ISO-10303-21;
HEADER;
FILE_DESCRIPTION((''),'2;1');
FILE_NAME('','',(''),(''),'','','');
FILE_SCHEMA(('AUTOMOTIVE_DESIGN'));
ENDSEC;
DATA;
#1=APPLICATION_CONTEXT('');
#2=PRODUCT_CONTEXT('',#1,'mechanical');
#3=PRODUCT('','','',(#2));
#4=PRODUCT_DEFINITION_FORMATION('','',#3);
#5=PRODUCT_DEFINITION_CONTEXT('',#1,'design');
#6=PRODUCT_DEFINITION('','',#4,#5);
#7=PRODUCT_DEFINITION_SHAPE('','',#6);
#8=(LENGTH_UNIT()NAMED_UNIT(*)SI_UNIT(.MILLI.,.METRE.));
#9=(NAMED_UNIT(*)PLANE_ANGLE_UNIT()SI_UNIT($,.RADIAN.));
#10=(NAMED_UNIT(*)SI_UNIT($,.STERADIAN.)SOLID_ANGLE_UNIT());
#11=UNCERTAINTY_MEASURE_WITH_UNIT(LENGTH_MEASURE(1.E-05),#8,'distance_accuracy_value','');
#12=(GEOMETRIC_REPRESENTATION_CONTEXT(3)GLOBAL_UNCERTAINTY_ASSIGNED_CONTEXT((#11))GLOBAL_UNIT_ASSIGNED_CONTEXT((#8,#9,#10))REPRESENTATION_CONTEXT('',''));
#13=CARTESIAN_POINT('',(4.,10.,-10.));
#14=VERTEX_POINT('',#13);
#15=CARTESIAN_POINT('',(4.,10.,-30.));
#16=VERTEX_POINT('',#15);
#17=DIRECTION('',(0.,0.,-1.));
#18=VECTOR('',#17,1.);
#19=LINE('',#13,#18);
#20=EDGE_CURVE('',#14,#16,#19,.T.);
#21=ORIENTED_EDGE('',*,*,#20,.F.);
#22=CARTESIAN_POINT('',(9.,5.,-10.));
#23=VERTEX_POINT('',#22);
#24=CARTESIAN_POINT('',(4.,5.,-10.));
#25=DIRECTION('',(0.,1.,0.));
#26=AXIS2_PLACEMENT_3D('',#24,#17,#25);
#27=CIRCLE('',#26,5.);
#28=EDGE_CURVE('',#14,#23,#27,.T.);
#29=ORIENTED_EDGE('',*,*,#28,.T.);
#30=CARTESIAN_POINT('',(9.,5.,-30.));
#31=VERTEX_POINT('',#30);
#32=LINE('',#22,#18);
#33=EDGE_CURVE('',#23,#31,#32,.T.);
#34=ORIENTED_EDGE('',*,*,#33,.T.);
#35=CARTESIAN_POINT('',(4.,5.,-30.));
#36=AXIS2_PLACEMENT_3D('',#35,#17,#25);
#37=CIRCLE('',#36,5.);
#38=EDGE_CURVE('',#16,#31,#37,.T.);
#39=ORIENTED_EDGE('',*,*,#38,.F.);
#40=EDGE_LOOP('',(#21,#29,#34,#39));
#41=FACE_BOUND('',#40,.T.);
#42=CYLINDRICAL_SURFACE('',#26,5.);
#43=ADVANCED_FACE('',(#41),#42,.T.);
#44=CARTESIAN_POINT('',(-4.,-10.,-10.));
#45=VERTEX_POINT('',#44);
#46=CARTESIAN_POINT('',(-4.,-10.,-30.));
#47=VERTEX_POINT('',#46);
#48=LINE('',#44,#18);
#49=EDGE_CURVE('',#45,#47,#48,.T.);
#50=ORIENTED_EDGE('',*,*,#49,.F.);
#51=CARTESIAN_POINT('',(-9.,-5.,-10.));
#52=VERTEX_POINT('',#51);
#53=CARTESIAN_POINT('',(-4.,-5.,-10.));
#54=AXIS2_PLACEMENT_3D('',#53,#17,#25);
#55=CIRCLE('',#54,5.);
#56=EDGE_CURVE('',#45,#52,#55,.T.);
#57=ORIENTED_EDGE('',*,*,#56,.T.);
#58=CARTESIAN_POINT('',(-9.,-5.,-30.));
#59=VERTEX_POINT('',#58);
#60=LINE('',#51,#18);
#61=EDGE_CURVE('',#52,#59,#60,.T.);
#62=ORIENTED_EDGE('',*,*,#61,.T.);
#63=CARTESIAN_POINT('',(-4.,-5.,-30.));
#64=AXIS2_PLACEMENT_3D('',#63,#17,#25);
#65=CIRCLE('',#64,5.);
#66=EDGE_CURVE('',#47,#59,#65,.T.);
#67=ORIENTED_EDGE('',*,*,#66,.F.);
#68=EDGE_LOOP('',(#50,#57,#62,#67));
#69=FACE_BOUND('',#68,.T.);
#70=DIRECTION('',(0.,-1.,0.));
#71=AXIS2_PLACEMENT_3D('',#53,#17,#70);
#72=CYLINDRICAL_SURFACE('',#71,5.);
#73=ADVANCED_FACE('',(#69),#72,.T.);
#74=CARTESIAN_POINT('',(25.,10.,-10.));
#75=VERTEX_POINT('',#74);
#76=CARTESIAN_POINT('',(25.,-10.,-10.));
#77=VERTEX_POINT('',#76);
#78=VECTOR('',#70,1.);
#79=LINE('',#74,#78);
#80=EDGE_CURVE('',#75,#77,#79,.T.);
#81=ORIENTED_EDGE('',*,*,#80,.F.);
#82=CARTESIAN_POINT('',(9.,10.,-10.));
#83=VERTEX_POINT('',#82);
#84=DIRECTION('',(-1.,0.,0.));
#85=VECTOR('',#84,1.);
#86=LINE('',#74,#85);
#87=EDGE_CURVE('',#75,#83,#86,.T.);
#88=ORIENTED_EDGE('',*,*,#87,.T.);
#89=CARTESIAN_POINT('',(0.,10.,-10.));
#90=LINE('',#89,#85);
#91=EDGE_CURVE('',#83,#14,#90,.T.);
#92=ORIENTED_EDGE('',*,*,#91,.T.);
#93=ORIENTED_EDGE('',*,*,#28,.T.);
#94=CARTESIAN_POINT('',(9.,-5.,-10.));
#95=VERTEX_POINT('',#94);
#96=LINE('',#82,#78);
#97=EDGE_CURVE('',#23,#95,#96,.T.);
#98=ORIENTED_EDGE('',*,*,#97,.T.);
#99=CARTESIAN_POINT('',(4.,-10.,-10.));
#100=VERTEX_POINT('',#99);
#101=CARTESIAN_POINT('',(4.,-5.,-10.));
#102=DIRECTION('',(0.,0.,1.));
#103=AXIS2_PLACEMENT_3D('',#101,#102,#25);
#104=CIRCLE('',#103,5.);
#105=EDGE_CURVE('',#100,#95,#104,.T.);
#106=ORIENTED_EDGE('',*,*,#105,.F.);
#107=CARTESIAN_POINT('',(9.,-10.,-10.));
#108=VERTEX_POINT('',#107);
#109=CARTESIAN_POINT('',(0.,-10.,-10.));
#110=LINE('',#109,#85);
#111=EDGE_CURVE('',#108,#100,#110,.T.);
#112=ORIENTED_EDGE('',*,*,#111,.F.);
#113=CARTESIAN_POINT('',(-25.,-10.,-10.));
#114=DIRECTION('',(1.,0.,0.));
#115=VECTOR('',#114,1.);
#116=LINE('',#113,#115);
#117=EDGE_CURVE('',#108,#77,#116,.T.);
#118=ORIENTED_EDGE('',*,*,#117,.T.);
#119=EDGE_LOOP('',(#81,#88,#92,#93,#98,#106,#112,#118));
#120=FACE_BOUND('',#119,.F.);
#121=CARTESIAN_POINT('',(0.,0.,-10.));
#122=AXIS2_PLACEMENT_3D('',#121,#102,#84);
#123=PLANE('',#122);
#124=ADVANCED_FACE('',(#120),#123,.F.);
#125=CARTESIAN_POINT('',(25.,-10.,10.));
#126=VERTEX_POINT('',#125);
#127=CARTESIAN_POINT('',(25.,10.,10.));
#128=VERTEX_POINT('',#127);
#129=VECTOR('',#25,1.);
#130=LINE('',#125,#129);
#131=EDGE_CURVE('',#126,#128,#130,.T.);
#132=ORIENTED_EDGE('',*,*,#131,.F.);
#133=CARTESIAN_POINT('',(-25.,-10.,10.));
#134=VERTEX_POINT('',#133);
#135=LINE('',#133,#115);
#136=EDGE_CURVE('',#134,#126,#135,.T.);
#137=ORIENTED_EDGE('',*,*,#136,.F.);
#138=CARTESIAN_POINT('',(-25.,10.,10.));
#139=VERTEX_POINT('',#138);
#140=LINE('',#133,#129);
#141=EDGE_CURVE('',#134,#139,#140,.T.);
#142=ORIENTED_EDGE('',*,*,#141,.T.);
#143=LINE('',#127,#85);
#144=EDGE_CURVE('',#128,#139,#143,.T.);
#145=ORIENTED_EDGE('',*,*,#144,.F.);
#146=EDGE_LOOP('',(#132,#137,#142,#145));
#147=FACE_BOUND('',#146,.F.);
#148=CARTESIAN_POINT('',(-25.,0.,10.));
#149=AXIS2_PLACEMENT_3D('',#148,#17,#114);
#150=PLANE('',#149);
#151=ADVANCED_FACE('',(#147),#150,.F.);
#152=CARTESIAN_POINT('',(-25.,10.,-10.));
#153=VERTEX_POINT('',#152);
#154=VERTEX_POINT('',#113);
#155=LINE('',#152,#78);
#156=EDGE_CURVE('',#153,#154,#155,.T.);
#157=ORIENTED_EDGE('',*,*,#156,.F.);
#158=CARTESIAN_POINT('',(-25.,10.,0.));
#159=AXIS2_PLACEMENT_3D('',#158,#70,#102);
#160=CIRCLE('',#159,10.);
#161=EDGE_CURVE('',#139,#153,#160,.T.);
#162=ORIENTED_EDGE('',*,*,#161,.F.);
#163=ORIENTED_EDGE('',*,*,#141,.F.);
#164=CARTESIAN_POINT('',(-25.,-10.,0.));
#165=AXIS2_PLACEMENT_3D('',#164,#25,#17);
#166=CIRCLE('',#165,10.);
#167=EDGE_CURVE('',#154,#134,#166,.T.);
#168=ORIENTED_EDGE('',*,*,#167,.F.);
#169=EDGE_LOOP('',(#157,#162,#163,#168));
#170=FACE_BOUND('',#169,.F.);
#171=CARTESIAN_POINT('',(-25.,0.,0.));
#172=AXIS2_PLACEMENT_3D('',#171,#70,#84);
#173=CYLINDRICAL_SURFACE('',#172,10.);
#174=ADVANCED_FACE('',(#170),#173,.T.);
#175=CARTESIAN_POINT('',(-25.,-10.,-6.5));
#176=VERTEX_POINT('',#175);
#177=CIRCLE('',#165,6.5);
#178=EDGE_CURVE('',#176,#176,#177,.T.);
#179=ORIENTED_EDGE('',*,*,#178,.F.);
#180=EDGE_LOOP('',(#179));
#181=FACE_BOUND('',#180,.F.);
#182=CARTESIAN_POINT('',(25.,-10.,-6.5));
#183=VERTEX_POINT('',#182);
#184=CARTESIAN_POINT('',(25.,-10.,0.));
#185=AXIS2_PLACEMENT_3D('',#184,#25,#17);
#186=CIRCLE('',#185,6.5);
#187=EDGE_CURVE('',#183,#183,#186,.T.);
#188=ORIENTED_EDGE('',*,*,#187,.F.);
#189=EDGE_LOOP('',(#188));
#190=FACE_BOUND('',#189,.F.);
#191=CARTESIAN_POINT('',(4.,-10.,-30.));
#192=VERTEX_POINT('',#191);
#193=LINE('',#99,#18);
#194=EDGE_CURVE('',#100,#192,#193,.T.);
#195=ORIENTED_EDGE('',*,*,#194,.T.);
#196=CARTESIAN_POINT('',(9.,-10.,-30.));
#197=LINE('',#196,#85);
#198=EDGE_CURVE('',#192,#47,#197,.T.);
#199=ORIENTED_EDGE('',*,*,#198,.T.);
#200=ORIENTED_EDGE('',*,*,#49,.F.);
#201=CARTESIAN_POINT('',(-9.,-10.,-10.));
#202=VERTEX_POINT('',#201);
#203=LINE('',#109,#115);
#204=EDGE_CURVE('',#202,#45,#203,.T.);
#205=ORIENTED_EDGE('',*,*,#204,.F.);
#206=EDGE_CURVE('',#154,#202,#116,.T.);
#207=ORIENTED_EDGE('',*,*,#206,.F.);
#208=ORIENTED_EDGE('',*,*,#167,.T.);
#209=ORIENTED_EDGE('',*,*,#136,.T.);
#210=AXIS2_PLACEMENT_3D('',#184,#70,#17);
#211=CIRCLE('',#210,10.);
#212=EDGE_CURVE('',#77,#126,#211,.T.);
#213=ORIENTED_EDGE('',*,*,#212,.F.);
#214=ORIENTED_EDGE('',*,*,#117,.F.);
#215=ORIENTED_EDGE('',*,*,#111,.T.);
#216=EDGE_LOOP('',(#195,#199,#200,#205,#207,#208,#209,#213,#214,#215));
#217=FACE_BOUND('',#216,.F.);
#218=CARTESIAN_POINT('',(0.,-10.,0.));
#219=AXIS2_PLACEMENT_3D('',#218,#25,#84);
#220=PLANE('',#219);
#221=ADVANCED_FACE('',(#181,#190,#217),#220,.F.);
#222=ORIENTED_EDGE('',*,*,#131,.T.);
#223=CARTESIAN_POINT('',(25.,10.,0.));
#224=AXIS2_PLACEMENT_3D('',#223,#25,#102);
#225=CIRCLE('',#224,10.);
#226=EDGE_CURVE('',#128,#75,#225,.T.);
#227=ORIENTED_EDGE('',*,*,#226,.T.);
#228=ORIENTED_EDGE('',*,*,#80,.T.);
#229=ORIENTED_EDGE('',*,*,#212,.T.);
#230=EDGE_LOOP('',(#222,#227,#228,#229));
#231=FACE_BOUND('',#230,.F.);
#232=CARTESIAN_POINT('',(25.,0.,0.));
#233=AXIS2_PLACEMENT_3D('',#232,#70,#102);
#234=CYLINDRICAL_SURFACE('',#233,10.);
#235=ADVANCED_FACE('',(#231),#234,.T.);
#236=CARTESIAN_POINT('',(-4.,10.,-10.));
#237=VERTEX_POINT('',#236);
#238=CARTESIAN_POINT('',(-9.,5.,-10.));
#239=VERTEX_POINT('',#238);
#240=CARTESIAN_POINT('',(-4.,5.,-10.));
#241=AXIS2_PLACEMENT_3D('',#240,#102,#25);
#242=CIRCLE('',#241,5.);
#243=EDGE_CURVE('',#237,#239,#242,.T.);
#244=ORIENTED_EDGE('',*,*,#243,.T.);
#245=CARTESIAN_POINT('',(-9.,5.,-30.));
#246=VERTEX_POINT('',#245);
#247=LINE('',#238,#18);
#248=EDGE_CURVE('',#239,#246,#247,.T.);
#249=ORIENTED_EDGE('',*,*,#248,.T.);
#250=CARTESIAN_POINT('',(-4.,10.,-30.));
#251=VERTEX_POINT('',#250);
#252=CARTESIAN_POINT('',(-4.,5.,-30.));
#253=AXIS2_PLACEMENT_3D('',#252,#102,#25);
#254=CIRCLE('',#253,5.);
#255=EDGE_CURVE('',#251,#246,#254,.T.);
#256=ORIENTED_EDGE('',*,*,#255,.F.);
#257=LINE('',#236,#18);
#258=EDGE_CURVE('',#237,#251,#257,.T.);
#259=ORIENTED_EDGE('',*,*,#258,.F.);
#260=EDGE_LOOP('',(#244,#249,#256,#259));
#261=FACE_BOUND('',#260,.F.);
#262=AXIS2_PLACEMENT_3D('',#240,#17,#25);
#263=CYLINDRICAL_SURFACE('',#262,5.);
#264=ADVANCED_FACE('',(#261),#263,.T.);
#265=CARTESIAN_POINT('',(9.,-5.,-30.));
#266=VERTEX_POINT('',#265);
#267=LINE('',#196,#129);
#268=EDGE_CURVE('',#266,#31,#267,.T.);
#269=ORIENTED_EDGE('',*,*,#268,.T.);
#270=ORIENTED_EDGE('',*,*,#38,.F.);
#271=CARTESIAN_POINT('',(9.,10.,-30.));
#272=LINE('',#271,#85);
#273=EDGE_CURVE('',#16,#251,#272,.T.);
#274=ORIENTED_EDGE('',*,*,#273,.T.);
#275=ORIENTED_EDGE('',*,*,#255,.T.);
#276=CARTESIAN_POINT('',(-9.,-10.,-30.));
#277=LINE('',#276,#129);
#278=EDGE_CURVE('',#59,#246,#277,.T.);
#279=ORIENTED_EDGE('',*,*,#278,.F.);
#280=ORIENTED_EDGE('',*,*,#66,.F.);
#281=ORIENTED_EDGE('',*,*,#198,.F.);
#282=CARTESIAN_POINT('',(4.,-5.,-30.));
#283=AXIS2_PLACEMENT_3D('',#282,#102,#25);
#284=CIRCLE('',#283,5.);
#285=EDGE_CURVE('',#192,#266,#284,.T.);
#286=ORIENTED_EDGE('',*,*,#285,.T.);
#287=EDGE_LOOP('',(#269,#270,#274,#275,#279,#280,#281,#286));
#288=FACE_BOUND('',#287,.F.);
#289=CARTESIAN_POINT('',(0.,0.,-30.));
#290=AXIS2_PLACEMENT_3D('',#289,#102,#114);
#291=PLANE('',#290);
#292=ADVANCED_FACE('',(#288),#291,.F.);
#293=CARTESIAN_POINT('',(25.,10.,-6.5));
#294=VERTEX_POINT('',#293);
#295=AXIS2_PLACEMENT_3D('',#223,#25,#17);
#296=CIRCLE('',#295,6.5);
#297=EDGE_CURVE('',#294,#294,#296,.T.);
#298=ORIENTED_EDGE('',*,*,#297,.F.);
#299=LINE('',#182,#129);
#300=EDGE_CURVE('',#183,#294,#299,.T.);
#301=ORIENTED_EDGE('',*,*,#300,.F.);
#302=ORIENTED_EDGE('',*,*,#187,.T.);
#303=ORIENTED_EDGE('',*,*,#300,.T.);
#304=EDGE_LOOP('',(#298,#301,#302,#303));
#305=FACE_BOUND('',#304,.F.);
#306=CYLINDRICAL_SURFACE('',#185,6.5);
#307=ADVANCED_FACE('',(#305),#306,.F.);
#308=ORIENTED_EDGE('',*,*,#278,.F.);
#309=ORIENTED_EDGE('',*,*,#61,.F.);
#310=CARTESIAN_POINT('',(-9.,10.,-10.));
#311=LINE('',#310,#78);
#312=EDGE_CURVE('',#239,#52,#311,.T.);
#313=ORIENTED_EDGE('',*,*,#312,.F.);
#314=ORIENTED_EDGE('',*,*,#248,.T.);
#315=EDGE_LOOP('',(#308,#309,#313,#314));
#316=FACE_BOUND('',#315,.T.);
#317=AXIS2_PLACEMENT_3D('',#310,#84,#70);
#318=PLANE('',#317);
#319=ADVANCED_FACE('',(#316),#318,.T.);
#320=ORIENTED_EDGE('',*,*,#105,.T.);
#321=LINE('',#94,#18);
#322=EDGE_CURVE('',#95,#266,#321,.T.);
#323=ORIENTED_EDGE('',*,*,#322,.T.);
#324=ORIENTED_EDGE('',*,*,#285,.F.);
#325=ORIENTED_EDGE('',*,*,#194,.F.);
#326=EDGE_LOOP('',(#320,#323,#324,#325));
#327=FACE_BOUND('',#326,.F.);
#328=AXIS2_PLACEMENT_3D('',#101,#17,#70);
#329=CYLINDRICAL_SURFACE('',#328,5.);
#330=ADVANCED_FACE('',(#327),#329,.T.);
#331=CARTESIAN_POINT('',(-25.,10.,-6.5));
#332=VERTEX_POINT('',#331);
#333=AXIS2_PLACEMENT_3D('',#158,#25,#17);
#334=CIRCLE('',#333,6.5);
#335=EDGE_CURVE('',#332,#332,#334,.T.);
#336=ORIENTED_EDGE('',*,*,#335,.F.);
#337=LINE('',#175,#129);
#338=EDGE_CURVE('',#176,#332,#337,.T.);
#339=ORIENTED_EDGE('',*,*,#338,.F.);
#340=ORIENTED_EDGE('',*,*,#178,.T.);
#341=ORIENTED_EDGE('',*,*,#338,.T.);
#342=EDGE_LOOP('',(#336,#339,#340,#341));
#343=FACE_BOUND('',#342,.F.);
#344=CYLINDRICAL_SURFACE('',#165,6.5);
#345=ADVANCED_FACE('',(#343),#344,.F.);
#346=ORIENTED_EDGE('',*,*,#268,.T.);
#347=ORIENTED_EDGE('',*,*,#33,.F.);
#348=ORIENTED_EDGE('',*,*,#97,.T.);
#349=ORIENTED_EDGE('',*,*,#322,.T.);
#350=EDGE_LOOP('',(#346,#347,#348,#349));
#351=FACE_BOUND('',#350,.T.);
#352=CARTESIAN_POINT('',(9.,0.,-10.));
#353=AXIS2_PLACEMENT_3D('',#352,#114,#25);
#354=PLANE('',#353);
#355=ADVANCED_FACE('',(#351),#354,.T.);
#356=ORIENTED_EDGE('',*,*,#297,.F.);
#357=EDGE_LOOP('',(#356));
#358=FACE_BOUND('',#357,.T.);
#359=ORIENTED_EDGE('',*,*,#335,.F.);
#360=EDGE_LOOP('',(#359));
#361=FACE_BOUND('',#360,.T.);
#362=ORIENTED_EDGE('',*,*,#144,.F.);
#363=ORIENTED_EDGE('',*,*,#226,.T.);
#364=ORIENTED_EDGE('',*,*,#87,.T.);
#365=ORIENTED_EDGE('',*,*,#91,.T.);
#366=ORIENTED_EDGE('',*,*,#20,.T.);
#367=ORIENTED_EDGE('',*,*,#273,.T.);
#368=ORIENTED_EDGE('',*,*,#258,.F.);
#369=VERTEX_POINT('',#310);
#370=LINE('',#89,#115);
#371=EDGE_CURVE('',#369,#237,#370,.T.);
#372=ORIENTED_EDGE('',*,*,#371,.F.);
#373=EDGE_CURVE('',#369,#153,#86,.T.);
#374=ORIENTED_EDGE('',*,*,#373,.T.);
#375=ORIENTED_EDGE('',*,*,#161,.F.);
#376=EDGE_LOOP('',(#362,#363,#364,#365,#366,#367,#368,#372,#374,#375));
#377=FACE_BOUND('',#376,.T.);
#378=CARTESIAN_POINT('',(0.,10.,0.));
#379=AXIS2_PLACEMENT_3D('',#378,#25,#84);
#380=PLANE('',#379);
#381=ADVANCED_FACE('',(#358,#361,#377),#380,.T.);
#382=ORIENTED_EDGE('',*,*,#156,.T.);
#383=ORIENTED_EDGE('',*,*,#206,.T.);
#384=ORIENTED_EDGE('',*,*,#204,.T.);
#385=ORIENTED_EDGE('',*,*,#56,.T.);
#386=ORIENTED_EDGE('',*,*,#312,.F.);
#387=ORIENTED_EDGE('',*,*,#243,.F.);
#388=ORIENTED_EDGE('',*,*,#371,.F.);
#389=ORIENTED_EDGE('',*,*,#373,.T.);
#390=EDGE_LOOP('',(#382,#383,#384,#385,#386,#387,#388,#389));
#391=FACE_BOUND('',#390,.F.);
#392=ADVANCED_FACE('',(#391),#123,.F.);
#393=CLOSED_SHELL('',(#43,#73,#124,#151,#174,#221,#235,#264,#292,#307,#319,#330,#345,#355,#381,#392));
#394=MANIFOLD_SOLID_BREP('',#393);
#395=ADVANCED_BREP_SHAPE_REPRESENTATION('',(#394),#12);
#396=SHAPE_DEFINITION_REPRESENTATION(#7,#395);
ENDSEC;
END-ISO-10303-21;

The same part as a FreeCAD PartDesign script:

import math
import FreeCAD as App
import Part
import Sketcher


def edges_at(feature, points):
    """Names of the edges that pass closest to the given points."""
    edges = feature.Shape.Edges
    near = lambda p: min(range(len(edges)), key=lambda i: edges[i].distToShape(Part.Vertex(*p))[0])
    return sorted({f"Edge{near(p) + 1}" for p in points})

doc = App.newDocument("Part")
body = doc.addObject("PartDesign::Body", "Body")

# Sketch on XZ plane
sketch1 = body.newObject("Sketcher::SketchObject", "Sketch")
sketch1.AttachmentSupport = (doc.getObject("XZ_Plane"), [""])
sketch1.MapMode = "FlatFace"
sketch1.addGeometry([
    Part.LineSegment(App.Vector(-25, 10, 0), App.Vector(25, 10, 0)),
    Part.ArcOfCircle(Part.Circle(App.Vector(25, 0, 0), App.Vector(0, 0, 1), 10), math.radians(-90), math.radians(90)),
    Part.LineSegment(App.Vector(25, -10, 0), App.Vector(-25, -10, 0)),
    Part.ArcOfCircle(Part.Circle(App.Vector(-25, 0, 0), App.Vector(0, 0, 1), 10), math.radians(90), math.radians(270)),
], False)
sketch1.addConstraint([
    Sketcher.Constraint("Tangent", 0, 2, 1, 2),
    Sketcher.Constraint("Tangent", 1, 1, 2, 1),
    Sketcher.Constraint("Tangent", 2, 2, 3, 2),
    Sketcher.Constraint("Tangent", 3, 1, 0, 1),
    Sketcher.Constraint("Horizontal", 0),
    Sketcher.Constraint("Horizontal", 2),
    Sketcher.Constraint("Symmetric", 1, 3, 3, 3, -1, 1),
    Sketcher.Constraint("Radius", 1, 10.0),
    Sketcher.Constraint("DistanceX", 0, 1, 0, 2, 50.0),
])
pad1 = body.newObject("PartDesign::Pad", "Pad")
pad1.Profile = sketch1
pad1.Length = 20
pad1.Midplane = True

# Sketch on XZ plane
sketch2 = body.newObject("Sketcher::SketchObject", "Sketch001")
sketch2.AttachmentSupport = (doc.getObject("XZ_Plane"), [""])
sketch2.MapMode = "FlatFace"
sketch2.AttachmentOffset = App.Placement(App.Vector(0, 0, 10), App.Rotation())
sketch2.addGeometry([
    Part.Circle(App.Vector(-25, 0, 0), App.Vector(0, 0, 1), 3.4),
    Part.Circle(App.Vector(25, 0, 0), App.Vector(0, 0, 1), 3.4),
], False)
sketch2.addConstraint([
    Sketcher.Constraint("Equal", 0, 1),
    Sketcher.Constraint("Symmetric", 0, 3, 1, 3, -1, 1),
    Sketcher.Constraint("PointOnObject", 0, 3, -1),
    Sketcher.Constraint("Diameter", 0, 6.756),
    Sketcher.Constraint("DistanceX", 0, 3, -1, 1, 25.0),
])
doc.recompute()
hole = body.newObject("PartDesign::Hole", "Hole")
hole.Profile = sketch2
hole.ThreadType = "None"
hole.Diameter = 6.756
hole.DepthType = "ThroughAll"
hole.HoleCutType = "Counterbore"
hole.HoleCutDiameter = 13
hole.HoleCutDepth = 20

# Sketch on XY plane
sketch3 = body.newObject("Sketcher::SketchObject", "Sketch002")
sketch3.AttachmentSupport = (doc.getObject("XY_Plane"), [""])
sketch3.MapMode = "FlatFace"
sketch3.AttachmentOffset = App.Placement(App.Vector(0, 0, -10), App.Rotation())
sketch3.addGeometry([
    Part.LineSegment(App.Vector(9, 10, 0), App.Vector(-9, 10, 0)),
    Part.LineSegment(App.Vector(-9, 10, 0), App.Vector(-9, -10, 0)),
    Part.LineSegment(App.Vector(-9, -10, 0), App.Vector(9, -10, 0)),
    Part.LineSegment(App.Vector(9, -10, 0), App.Vector(9, 10, 0)),
], False)
sketch3.addConstraint([
    Sketcher.Constraint("Coincident", 0, 2, 1, 1),
    Sketcher.Constraint("Coincident", 1, 2, 2, 1),
    Sketcher.Constraint("Coincident", 2, 2, 3, 1),
    Sketcher.Constraint("Coincident", 3, 2, 0, 1),
    Sketcher.Constraint("Horizontal", 0),
    Sketcher.Constraint("Vertical", 1),
    Sketcher.Constraint("Horizontal", 2),
    Sketcher.Constraint("Vertical", 3),
    Sketcher.Constraint("Symmetric", 0, 2, 2, 2, -1, 1),
    Sketcher.Constraint("DistanceX", 0, 2, 0, 1, 18.0),
    Sketcher.Constraint("DistanceY", 1, 2, 1, 1, 20.0),
])
pad2 = body.newObject("PartDesign::Pad", "Pad001")
pad2.Profile = sketch3
pad2.Length = 20
pad2.Reversed = True
doc.recompute()

fillet = body.newObject("PartDesign::Fillet", "Fillet")
fillet.Base = (pad2, edges_at(pad2, [
    (-9, -10, -20),
    (9, -10, -20),
    (9, 10, -20),
    (-9, 10, -20),
]))
fillet.Radius = 5

doc.recompute()
